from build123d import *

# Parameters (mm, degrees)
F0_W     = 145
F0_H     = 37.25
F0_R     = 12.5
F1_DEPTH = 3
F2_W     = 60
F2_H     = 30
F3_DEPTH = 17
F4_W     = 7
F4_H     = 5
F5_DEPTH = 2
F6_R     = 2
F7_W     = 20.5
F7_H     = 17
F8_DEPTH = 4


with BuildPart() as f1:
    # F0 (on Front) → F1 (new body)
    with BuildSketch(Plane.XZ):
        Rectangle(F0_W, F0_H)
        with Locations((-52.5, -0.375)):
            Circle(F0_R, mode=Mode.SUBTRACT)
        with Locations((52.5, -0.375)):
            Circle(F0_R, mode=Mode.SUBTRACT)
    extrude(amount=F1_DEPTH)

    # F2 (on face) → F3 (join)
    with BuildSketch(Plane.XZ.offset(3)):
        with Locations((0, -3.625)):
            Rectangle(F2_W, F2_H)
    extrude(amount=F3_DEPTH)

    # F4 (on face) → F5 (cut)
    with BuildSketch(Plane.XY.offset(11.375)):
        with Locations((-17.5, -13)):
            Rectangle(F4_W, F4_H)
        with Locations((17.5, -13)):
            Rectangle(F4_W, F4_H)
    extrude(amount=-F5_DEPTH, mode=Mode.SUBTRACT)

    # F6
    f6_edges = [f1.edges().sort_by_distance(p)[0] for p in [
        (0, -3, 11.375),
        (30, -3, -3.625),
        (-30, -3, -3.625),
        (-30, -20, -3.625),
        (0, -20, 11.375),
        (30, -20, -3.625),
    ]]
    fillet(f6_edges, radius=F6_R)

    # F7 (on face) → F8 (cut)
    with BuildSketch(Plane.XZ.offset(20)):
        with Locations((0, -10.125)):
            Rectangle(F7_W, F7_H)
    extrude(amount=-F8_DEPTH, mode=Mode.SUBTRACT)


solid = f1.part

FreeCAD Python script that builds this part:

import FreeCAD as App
import Part
import Sketcher
from FreeCAD import Vector


def edges_at(feature, points):
    """Names of the edges that pass closest to the given points."""
    edges = feature.Shape.Edges
    near = lambda p: min(range(len(edges)), key=lambda i: edges[i].distToShape(Part.Vertex(*p))[0])
    return sorted({f"Edge{near(p) + 1}" for p in points})


def add_polygon(sketch, points):
    """Adds a closed chain of lines whose ends are joined by coincident constraints."""
    first, n = sketch.GeometryCount, len(points)
    for a, b in zip(points, points[1:] + points[:1]):
        sketch.addGeometry(Part.LineSegment(App.Vector(*a, 0), App.Vector(*b, 0)), False)
    for i in range(n):
        sketch.addConstraint(Sketcher.Constraint("Coincident", first + i, 2, first + (i + 1) % n, 1))

doc = App.newDocument("Part")
body = doc.addObject("PartDesign::Body", "Body")

# Sketch on XZ plane
sketch1 = doc.addObject("Sketcher::SketchObject", "Sketch")
body.addObject(sketch1)
sketch1.AttachmentSupport = (doc.XZ_Plane, [""])
sketch1.MapMode = "FlatFace"
add_polygon(sketch1, [(-72, 19), (-72, -19), (72, -19), (72, 19)])  # lines 0-3
sketch1.addGeometry(Part.Circle(Vector(-52, 0, 0), Vector(0, 0, 1), 12), False)  # 4
sketch1.addGeometry(Part.Circle(Vector(52, 0, 0), Vector(0, 0, 1), 12), False)  # 5
sketch1.addConstraint([
    Sketcher.Constraint("Vertical", 0),
    Sketcher.Constraint("Horizontal", 1),
    Sketcher.Constraint("Vertical", 2),
    Sketcher.Constraint("Horizontal", 3),
    Sketcher.Constraint("Equal", 4, 5),
    Sketcher.Constraint("Symmetric", 0, 2, 2, 2, -1, 1),
    Sketcher.Constraint("Symmetric", 4, 3, 5, 3, -2),
    Sketcher.Constraint("Diameter", 4, 25.0),
    Sketcher.Constraint("DistanceX", 1, 1, 1, 2, 145.0),
    Sketcher.Constraint("DistanceX", 4, 3, 5, 3, 105.0),
    Sketcher.Constraint("DistanceY", 5, 3, 2, 2, 19.0),
    Sketcher.Constraint("DistanceY", 0, 2, 0, 1, 37.25),
])
pad1 = doc.addObject("PartDesign::Pad", "Pad")
body.addObject(pad1)
pad1.Profile = sketch1
pad1.Length = 3

# Sketch on XZ plane
sketch2 = doc.addObject("Sketcher::SketchObject", "Sketch001")
body.addObject(sketch2)
sketch2.AttachmentSupport = (doc.XZ_Plane, [""])
sketch2.MapMode = "FlatFace"
sketch2.AttachmentOffset = App.Placement(Vector(0, 0, 3), App.Rotation())
add_polygon(sketch2, [(-30, 11), (-30, -19), (30, -19), (30, 11)])  # lines 0-3
sketch2.addConstraint([
    Sketcher.Constraint("Vertical", 0),
    Sketcher.Constraint("Horizontal", 1),
    Sketcher.Constraint("Vertical", 2),
    Sketcher.Constraint("Horizontal", 3),
    Sketcher.Constraint("DistanceX", 1, 1, 1, 2, 60.0),
    Sketcher.Constraint("DistanceY", 0, 2, 0, 1, 30.0),
    Sketcher.Constraint("DistanceX", 0, 2, -1, 1, 30.0),
    Sketcher.Constraint("DistanceY", 0, 2, -1, 1, 18.625),
])
pad2 = doc.addObject("PartDesign::Pad", "Pad001")
body.addObject(pad2)
pad2.Profile = sketch2
pad2.Length = 17

# Sketch on XY plane
sketch3 = doc.addObject("Sketcher::SketchObject", "Sketch002")
body.addObject(sketch3)
sketch3.AttachmentSupport = (doc.XY_Plane, [""])
sketch3.MapMode = "FlatFace"
sketch3.AttachmentOffset = App.Placement(Vector(0, 0, 11.375), App.Rotation())
add_polygon(sketch3, [(-21, -10), (-21, -16), (-14, -16), (-14, -10)])  # lines 0-3
add_polygon(sketch3, [(14, -10), (14, -16), (21, -16), (21, -10)])  # lines 4-7
sketch3.addConstraint([
    Sketcher.Constraint("Vertical", 0),
    Sketcher.Constraint("Horizontal", 1),
    Sketcher.Constraint("Vertical", 2),
    Sketcher.Constraint("Horizontal", 3),
    Sketcher.Constraint("Vertical", 4),
    Sketcher.Constraint("Horizontal", 5),
    Sketcher.Constraint("Vertical", 6),
    Sketcher.Constraint("Horizontal", 7),
    Sketcher.Constraint("Symmetric", 1, 2, 4, 2, -2),
    Sketcher.Constraint("Symmetric", 3, 2, 6, 2, -2),
    Sketcher.Constraint("DistanceX", 1, 1, 1, 2, 7.0),
    Sketcher.Constraint("DistanceY", 0, 2, 0, 1, 5.0),
    Sketcher.Constraint("DistanceX", 0, 2, -1, 1, 21.0),
    Sketcher.Constraint("DistanceY", 0, 2, -1, 1, 15.5),
])
pocket1 = doc.addObject("PartDesign::Pocket", "Pocket")
body.addObject(pocket1)
pocket1.Profile = sketch3
pocket1.Length = 2
doc.recompute()

fillet = doc.addObject("PartDesign::Fillet", "Fillet")
body.addObject(fillet)
fillet.Base = (pocket1, edges_at(pocket1, [
    (0, -3, 11.375),
    (30, -3, -3.625),
    (-30, -3, -3.625),
    (-30, -20, -3.625),
    (0, -20, 11.375),
    (30, -20, -3.625),
]))
fillet.Radius = 2

# Sketch on XZ plane
sketch4 = doc.addObject("Sketcher::SketchObject", "Sketch003")
body.addObject(sketch4)
sketch4.AttachmentSupport = (doc.XZ_Plane, [""])
sketch4.MapMode = "FlatFace"
sketch4.AttachmentOffset = App.Placement(Vector(0, 0, 20), App.Rotation())
add_polygon(sketch4, [(-10, -2), (-10, -19), (10, -19), (10, -2)])  # lines 0-3
sketch4.addConstraint([
    Sketcher.Constraint("Vertical", 0),
    Sketcher.Constraint("Horizontal", 1),
    Sketcher.Constraint("Vertical", 2),
    Sketcher.Constraint("Horizontal", 3),
    Sketcher.Constraint("DistanceY", 0, 2, 0, 1, 17.0),
    Sketcher.Constraint("DistanceX", 1, 1, 1, 2, 20.5),
    Sketcher.Constraint("DistanceX", 0, 2, -1, 1, 10.25),
    Sketcher.Constraint("DistanceY", 0, 2, -1, 1, 18.625),
])
pocket2 = doc.addObject("PartDesign::Pocket", "Pocket001")
body.addObject(pocket2)
pocket2.Profile = sketch4
pocket2.Length = 4

doc.recompute()
